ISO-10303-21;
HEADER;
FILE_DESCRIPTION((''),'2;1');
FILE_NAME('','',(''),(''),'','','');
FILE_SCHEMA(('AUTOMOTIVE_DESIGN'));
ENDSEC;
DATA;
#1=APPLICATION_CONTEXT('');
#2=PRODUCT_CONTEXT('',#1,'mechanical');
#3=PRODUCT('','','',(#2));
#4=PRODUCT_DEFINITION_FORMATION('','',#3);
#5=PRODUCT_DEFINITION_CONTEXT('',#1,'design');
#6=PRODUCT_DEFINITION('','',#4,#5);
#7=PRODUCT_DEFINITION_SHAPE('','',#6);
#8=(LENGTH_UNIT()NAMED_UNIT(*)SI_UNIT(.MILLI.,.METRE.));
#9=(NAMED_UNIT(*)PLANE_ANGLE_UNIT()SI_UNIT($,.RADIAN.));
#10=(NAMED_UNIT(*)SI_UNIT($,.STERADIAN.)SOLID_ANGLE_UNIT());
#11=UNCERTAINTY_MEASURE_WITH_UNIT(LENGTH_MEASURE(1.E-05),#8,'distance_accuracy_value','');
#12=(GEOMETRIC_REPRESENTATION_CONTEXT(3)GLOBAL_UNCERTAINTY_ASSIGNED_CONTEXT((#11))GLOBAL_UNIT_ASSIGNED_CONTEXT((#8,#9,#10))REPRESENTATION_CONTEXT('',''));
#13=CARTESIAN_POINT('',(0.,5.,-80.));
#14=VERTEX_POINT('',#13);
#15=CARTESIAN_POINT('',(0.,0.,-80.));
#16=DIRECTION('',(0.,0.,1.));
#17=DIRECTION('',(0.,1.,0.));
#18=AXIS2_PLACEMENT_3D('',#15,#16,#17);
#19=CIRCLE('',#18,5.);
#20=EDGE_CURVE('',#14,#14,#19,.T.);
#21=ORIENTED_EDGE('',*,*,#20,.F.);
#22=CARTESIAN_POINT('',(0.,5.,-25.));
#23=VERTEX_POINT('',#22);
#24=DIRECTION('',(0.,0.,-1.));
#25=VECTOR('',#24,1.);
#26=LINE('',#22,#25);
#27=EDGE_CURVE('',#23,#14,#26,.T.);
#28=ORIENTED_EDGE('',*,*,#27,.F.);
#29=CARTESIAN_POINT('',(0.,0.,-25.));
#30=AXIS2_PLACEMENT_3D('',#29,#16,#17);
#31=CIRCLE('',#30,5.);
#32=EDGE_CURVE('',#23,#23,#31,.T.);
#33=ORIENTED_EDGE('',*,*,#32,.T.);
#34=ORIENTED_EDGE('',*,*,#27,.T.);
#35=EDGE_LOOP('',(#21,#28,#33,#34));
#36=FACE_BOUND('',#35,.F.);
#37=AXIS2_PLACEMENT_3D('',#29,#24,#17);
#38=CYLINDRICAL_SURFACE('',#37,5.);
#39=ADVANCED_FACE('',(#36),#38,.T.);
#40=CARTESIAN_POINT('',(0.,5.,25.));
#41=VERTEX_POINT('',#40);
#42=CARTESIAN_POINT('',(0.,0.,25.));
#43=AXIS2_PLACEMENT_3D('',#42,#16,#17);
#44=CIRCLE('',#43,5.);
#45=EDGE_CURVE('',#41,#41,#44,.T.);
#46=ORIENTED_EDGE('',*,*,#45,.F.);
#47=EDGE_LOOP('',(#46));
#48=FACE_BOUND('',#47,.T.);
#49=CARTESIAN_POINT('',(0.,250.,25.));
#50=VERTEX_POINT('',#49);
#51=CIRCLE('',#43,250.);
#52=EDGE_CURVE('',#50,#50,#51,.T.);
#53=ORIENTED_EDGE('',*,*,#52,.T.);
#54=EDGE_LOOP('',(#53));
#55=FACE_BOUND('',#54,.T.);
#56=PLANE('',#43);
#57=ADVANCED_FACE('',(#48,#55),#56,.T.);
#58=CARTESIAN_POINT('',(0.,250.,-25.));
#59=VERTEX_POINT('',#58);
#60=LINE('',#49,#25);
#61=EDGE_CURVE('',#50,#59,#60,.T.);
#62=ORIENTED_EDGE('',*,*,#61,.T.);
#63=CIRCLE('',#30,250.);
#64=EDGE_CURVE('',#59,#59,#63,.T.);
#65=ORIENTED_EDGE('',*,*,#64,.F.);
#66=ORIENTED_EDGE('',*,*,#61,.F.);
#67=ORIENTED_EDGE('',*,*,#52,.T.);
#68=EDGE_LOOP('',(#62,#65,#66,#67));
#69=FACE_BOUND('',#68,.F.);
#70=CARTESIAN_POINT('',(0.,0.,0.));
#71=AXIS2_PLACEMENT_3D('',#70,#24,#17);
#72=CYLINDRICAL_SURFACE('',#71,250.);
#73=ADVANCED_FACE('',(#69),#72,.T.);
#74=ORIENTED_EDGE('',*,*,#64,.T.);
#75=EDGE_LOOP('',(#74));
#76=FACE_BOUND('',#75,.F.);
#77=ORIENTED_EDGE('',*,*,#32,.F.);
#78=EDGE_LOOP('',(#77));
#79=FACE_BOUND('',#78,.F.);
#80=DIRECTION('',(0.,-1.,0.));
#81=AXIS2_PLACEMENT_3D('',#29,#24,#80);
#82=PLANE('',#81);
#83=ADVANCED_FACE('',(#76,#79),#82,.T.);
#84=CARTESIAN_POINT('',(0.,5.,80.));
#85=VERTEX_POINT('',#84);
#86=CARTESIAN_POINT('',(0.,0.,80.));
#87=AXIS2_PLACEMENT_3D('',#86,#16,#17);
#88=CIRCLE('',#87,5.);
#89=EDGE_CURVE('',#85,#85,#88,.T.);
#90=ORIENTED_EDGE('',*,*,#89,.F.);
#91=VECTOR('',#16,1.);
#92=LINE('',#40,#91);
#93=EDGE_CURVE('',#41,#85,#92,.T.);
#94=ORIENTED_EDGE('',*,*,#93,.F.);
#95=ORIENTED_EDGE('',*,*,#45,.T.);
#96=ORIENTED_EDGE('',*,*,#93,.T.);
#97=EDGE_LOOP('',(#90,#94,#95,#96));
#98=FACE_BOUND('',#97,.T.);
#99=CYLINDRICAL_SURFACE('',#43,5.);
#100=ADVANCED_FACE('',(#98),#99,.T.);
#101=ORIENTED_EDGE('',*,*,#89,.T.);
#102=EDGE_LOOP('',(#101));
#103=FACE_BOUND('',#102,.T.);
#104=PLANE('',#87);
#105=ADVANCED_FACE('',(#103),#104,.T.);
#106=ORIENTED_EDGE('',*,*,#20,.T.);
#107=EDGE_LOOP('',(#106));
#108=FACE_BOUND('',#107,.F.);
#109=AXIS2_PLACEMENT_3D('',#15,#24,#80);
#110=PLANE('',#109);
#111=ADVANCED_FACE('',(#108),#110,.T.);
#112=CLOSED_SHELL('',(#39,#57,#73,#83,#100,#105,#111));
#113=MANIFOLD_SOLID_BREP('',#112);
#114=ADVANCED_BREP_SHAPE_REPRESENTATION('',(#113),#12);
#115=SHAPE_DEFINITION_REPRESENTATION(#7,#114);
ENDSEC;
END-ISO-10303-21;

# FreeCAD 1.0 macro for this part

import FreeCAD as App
import Part
import Sketcher

V = App.Vector

doc = App.newDocument("Part")
params = doc.addObject("Spreadsheet::Sheet", "Params")
for row, (alias, value) in enumerate([
    ("sketch1_width", "245 mm"),
    ("sketch1_width2", "5 mm"),
    ("sketch1_height", "25 mm"),
    ("sketch1_height2", "55 mm"),
    ("revolution_angle", "360 deg"),
], start=1):
    params.set(f"A{row}", alias)
    params.set(f"B{row}", "=" + value)
    params.setAlias(f"B{row}", alias)

body = doc.addObject("PartDesign::Body", "Body")

# Sketch on YZ plane
sketch1 = doc.addObject("Sketcher::SketchObject", "Sketch")
body.addObject(sketch1)
sketch1.AttachmentSupport = (doc.YZ_Plane, [""])
sketch1.MapMode = "FlatFace"
sketch1.addGeometry(Part.LineSegment(V(250, 0, 0), V(250, 25, 0)), False)
sketch1.addGeometry(Part.LineSegment(V(250, 25, 0), V(5, 25, 0)), False)
sketch1.addGeometry(Part.LineSegment(V(5, 25, 0), V(5, 80, 0)), False)
sketch1.addGeometry(Part.LineSegment(V(5, 80, 0), V(0, 80, 0)), False)
sketch1.addGeometry(Part.LineSegment(V(0, 80, 0), V(0, 0, 0)), False)
sketch1.addGeometry(Part.LineSegment(V(0, 0, 0), V(250, 0, 0)), False)
sketch1.addConstraint(Sketcher.Constraint("Coincident", 0, 2, 1, 1))
sketch1.addConstraint(Sketcher.Constraint("Coincident", 1, 2, 2, 1))
sketch1.addConstraint(Sketcher.Constraint("Coincident", 2, 2, 3, 1))
sketch1.addConstraint(Sketcher.Constraint("Coincident", 3, 2, 4, 1))
sketch1.addConstraint(Sketcher.Constraint("Coincident", 4, 2, 5, 1))
sketch1.addConstraint(Sketcher.Constraint("Coincident", 5, 2, 0, 1))
sketch1.addConstraint(Sketcher.Constraint("Vertical", 0))
sketch1.addConstraint(Sketcher.Constraint("Horizontal", 1))
sketch1.addConstraint(Sketcher.Constraint("Vertical", 2))
sketch1.addConstraint(Sketcher.Constraint("Horizontal", 3))
sketch1.addConstraint(Sketcher.Constraint("Vertical", 4))
sketch1.addConstraint(Sketcher.Constraint("Horizontal", 5))
sketch1.addConstraint(Sketcher.Constraint("Coincident", 4, 2, -1, 1))
sketch1.addConstraint(Sketcher.Constraint("DistanceX", 1, 2, 1, 1, 245.0))
sketch1.addConstraint(Sketcher.Constraint("DistanceX", 3, 2, 3, 1, 5.0))
sketch1.addConstraint(Sketcher.Constraint("DistanceY", 0, 1, 0, 2, 25.0))
sketch1.addConstraint(Sketcher.Constraint("DistanceY", 2, 1, 2, 2, 55.0))
sketch1.setExpression("Constraints[13]", "Params.sketch1_width")
sketch1.setExpression("Constraints[14]", "Params.sketch1_width2")
sketch1.setExpression("Constraints[15]", "Params.sketch1_height")
sketch1.setExpression("Constraints[16]", "Params.sketch1_height2")
revolution = doc.addObject("PartDesign::Revolution", "Revolution")
body.addObject(revolution)
revolution.Profile = sketch1
revolution.ReferenceAxis = (sketch1, ["V_Axis"])
revolution.setExpression("Angle", "Params.revolution_angle")
doc.recompute()

mirrored = doc.addObject("PartDesign::Mirrored", "Mirrored")
body.addObject(mirrored)
mirrored.Originals = [revolution]
mirrored.MirrorPlane = (doc.XY_Plane, [""])
body.Tip = mirrored

doc.recompute()
